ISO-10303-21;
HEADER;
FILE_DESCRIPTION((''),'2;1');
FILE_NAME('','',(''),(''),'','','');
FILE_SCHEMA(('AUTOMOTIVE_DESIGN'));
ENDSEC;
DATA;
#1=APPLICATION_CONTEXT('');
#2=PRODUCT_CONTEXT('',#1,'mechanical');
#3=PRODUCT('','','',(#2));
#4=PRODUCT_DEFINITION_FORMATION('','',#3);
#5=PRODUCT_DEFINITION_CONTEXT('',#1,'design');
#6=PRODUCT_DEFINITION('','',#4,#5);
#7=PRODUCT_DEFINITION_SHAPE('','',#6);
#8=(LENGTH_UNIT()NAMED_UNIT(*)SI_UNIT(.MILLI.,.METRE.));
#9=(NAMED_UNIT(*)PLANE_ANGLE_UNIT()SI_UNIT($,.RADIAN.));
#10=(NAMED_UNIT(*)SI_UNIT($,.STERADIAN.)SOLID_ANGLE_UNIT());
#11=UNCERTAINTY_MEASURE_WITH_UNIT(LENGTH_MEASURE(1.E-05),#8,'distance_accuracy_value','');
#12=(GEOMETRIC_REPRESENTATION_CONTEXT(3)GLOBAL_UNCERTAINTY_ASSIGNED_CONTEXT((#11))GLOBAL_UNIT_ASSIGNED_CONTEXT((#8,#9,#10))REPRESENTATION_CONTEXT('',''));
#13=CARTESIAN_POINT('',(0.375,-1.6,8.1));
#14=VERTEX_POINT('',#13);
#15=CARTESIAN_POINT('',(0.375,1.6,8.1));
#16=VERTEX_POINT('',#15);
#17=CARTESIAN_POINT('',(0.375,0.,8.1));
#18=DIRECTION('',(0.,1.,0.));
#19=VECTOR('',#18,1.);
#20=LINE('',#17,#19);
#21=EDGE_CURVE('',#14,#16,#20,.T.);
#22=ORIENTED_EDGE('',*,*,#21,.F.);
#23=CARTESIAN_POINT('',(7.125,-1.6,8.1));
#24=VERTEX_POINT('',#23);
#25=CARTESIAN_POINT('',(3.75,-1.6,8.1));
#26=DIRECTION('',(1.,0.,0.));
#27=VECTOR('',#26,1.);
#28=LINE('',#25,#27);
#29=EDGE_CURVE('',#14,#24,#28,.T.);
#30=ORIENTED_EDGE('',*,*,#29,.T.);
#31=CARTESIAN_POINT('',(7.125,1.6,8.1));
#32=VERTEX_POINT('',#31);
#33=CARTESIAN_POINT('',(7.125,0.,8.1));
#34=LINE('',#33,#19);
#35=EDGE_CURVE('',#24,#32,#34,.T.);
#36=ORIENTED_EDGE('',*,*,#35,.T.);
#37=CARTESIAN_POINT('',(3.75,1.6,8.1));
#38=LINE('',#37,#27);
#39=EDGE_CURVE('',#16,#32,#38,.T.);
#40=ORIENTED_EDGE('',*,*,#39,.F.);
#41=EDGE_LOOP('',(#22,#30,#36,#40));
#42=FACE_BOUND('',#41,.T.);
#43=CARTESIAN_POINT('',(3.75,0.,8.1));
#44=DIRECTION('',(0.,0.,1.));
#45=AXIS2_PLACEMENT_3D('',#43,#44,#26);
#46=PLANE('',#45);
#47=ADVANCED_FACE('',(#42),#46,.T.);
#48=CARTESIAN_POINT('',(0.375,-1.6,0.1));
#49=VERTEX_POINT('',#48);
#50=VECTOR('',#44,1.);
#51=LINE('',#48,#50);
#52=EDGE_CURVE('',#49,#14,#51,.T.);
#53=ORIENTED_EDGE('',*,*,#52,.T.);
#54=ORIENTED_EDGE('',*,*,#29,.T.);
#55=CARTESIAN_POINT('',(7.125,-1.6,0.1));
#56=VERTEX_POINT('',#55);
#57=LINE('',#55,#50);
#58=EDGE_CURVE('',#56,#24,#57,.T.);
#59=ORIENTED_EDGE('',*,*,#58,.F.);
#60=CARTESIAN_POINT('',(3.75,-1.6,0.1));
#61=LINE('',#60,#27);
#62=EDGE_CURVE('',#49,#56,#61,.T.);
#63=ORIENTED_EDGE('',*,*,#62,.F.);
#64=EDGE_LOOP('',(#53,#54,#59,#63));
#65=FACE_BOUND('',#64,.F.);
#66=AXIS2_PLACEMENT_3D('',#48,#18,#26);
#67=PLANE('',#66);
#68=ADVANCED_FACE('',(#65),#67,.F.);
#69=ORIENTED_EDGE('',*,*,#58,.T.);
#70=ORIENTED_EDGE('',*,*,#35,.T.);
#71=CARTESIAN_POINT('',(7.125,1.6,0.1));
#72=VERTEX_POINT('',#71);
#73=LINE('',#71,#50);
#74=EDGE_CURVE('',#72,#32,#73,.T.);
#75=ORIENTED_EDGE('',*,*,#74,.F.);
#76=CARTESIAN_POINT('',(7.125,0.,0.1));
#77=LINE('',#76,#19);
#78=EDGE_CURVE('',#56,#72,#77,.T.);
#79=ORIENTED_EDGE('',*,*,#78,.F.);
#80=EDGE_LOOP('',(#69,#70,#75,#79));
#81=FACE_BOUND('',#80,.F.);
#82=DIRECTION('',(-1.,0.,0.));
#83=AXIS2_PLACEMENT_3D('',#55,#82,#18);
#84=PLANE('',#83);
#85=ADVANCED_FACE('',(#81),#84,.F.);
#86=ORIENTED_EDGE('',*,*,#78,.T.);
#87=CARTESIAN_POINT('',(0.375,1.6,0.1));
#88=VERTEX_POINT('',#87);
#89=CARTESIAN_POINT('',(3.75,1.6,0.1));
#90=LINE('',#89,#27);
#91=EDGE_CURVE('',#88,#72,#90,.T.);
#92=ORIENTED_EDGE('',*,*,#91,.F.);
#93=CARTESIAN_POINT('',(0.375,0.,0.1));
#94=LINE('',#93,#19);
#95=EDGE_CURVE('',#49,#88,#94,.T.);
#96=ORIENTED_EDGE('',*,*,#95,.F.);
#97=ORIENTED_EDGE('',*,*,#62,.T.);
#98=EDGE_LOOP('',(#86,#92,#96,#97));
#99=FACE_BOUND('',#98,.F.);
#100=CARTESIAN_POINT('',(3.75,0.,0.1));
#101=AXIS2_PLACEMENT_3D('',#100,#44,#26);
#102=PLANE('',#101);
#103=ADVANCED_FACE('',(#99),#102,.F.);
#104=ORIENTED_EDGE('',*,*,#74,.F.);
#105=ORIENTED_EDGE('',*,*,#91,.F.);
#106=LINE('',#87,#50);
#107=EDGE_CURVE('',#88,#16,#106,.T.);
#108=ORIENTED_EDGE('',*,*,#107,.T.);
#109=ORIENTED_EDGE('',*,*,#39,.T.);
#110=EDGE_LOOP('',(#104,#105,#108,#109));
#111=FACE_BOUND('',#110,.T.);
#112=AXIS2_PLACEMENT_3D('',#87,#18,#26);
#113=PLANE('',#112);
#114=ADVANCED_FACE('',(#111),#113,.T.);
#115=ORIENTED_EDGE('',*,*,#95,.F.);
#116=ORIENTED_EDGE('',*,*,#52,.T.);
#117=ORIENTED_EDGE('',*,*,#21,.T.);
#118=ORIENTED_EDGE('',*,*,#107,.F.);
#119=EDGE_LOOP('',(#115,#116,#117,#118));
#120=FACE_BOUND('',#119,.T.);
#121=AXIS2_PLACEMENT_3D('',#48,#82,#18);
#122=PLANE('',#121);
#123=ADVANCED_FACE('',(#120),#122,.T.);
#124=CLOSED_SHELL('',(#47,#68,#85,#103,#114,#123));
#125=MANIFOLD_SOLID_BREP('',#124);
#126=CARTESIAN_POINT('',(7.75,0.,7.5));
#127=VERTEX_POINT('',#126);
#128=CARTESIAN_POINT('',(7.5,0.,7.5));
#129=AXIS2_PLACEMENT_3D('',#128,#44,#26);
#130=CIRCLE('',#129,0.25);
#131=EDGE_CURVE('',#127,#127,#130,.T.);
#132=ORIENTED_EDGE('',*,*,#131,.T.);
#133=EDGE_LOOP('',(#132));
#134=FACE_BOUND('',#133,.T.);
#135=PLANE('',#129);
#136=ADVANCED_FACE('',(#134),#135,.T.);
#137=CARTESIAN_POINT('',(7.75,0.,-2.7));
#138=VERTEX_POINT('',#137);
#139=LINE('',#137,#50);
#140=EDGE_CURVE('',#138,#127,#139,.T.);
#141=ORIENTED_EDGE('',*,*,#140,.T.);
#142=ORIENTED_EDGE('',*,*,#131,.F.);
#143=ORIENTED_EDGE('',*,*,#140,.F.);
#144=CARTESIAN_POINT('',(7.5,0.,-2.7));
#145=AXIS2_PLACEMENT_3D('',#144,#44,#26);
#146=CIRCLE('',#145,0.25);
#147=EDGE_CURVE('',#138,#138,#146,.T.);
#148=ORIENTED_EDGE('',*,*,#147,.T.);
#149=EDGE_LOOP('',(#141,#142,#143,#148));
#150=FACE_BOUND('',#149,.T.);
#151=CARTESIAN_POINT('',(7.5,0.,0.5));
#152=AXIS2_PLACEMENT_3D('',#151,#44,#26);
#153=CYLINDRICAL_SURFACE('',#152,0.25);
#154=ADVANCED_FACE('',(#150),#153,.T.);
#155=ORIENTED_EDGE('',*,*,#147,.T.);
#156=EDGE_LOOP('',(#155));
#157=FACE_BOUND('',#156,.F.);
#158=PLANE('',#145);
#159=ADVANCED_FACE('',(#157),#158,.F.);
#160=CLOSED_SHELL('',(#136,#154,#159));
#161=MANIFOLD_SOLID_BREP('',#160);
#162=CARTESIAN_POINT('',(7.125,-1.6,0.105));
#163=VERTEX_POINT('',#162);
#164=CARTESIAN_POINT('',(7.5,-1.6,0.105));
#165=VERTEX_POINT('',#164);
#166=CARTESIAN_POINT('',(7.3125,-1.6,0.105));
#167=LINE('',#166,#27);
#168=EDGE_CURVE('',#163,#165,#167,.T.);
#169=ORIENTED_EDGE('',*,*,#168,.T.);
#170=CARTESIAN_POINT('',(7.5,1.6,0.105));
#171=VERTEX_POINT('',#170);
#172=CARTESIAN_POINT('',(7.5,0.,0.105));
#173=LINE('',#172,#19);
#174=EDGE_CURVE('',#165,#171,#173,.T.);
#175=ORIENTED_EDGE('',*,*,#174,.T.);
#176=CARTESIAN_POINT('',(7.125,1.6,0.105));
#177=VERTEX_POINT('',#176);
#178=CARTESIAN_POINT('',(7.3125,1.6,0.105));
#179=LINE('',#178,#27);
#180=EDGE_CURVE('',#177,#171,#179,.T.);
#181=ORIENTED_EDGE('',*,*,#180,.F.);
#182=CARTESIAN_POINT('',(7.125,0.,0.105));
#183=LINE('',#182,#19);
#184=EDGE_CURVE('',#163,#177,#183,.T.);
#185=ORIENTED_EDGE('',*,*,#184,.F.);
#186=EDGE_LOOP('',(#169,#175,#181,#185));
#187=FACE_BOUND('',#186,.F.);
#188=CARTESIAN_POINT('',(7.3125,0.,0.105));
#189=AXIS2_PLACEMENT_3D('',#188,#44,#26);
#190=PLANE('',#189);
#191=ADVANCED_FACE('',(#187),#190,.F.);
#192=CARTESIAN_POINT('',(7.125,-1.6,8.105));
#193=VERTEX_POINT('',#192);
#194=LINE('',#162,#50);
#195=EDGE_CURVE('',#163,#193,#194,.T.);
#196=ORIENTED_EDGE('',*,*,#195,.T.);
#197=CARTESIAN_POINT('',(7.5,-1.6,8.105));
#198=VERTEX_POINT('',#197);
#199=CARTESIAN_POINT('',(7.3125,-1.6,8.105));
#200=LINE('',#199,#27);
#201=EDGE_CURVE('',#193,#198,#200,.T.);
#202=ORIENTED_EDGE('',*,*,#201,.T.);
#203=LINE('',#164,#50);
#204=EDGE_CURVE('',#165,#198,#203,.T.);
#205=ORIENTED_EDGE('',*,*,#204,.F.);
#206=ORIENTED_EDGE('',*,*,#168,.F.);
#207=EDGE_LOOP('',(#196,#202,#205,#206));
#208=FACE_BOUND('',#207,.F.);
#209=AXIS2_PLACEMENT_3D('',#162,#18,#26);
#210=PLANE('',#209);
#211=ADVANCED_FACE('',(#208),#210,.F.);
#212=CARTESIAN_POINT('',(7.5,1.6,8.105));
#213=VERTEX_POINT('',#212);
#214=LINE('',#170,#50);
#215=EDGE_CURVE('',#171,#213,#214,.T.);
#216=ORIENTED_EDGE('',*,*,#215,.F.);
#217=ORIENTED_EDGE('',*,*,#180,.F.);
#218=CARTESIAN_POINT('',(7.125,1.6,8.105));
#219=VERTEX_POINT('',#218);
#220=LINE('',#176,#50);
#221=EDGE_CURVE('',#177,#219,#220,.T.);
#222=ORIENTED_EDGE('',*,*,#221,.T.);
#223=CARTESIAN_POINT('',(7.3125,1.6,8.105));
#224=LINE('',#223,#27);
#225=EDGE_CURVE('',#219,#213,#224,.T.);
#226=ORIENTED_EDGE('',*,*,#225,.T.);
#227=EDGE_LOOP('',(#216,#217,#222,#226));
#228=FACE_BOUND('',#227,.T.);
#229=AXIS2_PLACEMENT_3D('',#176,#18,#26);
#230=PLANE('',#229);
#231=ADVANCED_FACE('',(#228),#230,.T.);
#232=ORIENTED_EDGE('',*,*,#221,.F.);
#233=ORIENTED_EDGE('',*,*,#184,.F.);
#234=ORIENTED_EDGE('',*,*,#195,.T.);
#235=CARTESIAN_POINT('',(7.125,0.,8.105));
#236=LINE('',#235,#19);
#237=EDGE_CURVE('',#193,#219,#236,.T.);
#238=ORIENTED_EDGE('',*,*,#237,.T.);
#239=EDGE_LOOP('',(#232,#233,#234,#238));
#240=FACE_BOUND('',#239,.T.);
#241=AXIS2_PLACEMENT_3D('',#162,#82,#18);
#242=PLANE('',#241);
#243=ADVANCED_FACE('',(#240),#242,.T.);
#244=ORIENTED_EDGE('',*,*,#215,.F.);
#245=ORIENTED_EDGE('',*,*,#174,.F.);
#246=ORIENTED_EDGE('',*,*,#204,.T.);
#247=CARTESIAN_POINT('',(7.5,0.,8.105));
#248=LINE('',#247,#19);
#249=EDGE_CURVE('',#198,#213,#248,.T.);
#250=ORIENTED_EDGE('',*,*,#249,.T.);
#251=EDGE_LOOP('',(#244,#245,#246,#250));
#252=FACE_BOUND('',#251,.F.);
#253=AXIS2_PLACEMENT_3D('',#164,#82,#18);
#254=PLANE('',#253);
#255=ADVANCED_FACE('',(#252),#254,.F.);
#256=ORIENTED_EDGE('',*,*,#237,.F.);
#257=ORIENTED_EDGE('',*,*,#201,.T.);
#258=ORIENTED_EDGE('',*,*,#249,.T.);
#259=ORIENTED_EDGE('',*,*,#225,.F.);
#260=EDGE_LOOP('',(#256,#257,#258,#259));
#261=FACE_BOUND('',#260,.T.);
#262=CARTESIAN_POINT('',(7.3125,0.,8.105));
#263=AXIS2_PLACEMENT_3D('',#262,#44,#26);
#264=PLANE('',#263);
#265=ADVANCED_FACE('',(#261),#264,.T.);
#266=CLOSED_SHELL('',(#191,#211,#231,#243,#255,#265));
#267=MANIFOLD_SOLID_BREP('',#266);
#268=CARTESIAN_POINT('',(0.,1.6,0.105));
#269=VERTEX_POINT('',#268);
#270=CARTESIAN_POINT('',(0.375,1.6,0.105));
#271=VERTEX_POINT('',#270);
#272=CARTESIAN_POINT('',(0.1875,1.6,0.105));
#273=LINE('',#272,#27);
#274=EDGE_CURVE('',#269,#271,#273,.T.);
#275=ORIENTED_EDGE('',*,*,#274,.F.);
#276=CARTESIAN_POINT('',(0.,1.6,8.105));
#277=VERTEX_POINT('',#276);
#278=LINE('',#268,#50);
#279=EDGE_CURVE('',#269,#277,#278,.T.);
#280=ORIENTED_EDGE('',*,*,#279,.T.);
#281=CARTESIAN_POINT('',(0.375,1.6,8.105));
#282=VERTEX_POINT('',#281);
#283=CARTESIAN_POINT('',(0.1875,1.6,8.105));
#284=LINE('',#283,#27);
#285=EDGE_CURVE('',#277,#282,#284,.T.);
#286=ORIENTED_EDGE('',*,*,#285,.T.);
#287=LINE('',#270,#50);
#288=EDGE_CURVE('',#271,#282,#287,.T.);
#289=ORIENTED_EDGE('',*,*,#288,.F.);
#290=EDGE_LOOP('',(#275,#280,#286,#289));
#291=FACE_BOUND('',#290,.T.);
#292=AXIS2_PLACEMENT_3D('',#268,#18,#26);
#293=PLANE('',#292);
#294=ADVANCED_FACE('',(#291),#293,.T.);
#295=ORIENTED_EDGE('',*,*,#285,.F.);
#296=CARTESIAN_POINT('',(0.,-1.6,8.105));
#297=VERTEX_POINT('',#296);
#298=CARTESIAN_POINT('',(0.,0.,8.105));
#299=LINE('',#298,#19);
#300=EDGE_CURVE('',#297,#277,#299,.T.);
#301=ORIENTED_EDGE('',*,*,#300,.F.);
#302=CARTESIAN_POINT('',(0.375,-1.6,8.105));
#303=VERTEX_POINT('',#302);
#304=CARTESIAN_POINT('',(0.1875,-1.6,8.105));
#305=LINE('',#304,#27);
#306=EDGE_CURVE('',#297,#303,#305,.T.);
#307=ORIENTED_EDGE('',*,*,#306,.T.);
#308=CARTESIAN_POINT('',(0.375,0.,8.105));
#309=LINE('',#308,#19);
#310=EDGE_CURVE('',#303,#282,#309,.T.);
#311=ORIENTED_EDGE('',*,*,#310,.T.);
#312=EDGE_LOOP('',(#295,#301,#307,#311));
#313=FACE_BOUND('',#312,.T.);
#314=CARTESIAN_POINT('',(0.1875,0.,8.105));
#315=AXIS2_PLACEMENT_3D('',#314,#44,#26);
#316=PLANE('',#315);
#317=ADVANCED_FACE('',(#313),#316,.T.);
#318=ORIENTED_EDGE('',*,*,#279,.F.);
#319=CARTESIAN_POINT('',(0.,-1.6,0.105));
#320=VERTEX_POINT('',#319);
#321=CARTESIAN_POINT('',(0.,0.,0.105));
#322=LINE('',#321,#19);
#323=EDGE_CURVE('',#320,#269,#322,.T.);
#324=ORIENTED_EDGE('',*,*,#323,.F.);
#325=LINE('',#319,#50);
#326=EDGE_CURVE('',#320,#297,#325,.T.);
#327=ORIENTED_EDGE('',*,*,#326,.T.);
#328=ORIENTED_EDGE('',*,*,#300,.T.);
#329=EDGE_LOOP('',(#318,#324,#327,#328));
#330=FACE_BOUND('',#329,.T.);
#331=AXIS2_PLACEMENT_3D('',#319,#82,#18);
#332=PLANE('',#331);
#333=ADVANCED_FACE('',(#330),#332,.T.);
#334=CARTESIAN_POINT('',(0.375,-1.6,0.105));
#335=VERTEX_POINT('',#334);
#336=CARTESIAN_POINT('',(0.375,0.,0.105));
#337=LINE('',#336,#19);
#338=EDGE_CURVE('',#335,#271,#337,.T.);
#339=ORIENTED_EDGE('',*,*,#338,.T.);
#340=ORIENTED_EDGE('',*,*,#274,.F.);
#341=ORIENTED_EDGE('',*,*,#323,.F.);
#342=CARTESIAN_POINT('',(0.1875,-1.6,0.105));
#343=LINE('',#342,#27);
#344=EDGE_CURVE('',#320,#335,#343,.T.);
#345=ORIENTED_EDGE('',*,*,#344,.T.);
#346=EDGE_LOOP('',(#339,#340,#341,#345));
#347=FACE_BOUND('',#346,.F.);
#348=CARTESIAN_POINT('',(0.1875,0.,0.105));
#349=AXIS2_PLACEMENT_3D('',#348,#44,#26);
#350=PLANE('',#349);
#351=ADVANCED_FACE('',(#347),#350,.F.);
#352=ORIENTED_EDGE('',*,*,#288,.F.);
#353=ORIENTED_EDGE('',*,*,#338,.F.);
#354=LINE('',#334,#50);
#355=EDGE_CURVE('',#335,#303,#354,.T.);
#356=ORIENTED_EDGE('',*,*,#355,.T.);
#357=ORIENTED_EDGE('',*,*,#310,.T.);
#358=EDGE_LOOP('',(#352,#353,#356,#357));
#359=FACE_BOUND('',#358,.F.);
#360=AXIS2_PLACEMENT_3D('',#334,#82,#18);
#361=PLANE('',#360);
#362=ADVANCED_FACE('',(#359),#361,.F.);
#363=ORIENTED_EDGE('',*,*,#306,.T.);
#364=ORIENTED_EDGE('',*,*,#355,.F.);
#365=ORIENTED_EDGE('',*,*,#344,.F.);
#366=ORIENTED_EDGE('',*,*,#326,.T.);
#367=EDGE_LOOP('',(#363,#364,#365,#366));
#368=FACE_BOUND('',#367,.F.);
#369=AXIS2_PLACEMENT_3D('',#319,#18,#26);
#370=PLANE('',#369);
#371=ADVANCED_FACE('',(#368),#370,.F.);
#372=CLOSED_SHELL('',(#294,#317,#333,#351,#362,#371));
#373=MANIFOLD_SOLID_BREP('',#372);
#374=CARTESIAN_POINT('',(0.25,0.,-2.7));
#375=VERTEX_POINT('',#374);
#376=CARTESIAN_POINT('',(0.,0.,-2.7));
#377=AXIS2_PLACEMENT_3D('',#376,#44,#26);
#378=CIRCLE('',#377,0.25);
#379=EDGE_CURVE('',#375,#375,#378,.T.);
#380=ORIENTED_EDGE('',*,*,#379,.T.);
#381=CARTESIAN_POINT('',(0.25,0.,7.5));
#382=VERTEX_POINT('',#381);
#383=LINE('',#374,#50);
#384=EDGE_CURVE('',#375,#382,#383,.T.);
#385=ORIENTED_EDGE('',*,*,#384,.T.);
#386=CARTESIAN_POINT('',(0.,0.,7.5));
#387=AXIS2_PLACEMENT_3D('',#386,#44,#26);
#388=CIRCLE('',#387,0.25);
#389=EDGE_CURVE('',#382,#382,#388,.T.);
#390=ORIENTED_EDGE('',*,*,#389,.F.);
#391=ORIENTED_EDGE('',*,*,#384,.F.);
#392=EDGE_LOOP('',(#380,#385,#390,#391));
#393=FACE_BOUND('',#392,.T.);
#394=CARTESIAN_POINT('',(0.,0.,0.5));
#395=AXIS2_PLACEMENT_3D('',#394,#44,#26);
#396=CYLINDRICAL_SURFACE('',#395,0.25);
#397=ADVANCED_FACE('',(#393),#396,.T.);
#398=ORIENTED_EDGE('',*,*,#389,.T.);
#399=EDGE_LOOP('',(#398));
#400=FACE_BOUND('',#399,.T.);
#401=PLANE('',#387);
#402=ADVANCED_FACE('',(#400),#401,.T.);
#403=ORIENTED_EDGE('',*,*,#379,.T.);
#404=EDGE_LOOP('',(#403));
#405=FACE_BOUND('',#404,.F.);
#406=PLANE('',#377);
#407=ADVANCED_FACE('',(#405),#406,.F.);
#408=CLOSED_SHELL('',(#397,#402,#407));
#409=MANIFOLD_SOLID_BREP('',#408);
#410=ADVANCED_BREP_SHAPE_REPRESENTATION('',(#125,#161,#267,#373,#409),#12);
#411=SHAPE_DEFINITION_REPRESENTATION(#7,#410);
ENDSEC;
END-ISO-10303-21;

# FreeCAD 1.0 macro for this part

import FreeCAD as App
import Part
import Sketcher

V = App.Vector

doc = App.newDocument("Part")
body = doc.addObject("PartDesign::Body", "Body")

# Sketch on XY plane
sketch1 = body.newObject("Sketcher::SketchObject", "Sketch")
sketch1.AttachmentSupport = (doc.getObject("XY_Plane"), [""])
sketch1.MapMode = "FlatFace"
sketch1.AttachmentOffset = App.Placement(V(0, 0, 0.1), App.Rotation())
sketch1.addGeometry([
    Part.LineSegment(V(0.4, 1.6, 0), V(0.4, -1.6, 0)),
    Part.LineSegment(V(0.4, -1.6, 0), V(7.1, -1.6, 0)),
    Part.LineSegment(V(7.1, -1.6, 0), V(7.1, 1.6, 0)),
    Part.LineSegment(V(7.1, 1.6, 0), V(0.4, 1.6, 0)),
], False)
sketch1.addConstraint([
    Sketcher.Constraint("Coincident", 0, 2, 1, 1),
    Sketcher.Constraint("Coincident", 1, 2, 2, 1),
    Sketcher.Constraint("Coincident", 2, 2, 3, 1),
    Sketcher.Constraint("Coincident", 3, 2, 0, 1),
    Sketcher.Constraint("Vertical", 0),
    Sketcher.Constraint("Horizontal", 1),
    Sketcher.Constraint("Vertical", 2),
    Sketcher.Constraint("Horizontal", 3),
    Sketcher.Constraint("DistanceY", 0, 2, 0, 1, 3.2),
    Sketcher.Constraint("DistanceX", 1, 1, 1, 2, 6.75),
    Sketcher.Constraint("DistanceY", 0, 2, -1, 1, 1.6),
    Sketcher.Constraint("DistanceX", -1, 1, 0, 2, 0.375),
])
pad1 = body.newObject("PartDesign::Pad", "Pad")
pad1.Profile = sketch1
pad1.Length = 8
body2 = doc.addObject("PartDesign::Body", "Body001")
body2.AllowCompound = True

# Sketch on XY plane
sketch2 = body2.newObject("Sketcher::SketchObject", "Sketch001")
sketch2.AttachmentSupport = (doc.getObject("XY_Plane001"), [""])
sketch2.MapMode = "FlatFace"
sketch2.AttachmentOffset = App.Placement(V(0, 0, 0.5), App.Rotation())
sketch2.addGeometry([
    Part.Circle(V(0, 0, 0), V(0, 0, 1), 0.25),
    Part.Circle(V(7.5, 0, 0), V(0, 0, 1), 0.25),
], False)
sketch2.addConstraint([
    Sketcher.Constraint("Coincident", 0, 3, -1, 1),
    Sketcher.Constraint("Equal", 0, 1),
    Sketcher.Constraint("PointOnObject", 1, 3, -1),
    Sketcher.Constraint("Diameter", 0, 0.5),
    Sketcher.Constraint("DistanceX", -1, 1, 1, 3, 7.5),
])
pad2 = body2.newObject("PartDesign::Pad", "Pad001")
pad2.Profile = sketch2
pad2.Type = "TwoLengths"
pad2.Length = 7
pad2.Length2 = 3.2
body3 = doc.addObject("PartDesign::Body", "Body002")
body3.AllowCompound = True

# Sketch on XY plane
sketch3 = body3.newObject("Sketcher::SketchObject", "Sketch002")
sketch3.AttachmentSupport = (doc.getObject("XY_Plane002"), [""])
sketch3.MapMode = "FlatFace"
sketch3.AttachmentOffset = App.Placement(V(0, 0, 0.105), App.Rotation())
sketch3.addGeometry([
    Part.LineSegment(V(0, 1.6, 0), V(0, -1.6, 0)),  # 0
    Part.LineSegment(V(0, -1.6, 0), V(0.38, -1.6, 0)),  # 1
    Part.LineSegment(V(0.38, -1.6, 0), V(0.38, 1.6, 0)),  # 2
    Part.LineSegment(V(0.38, 1.6, 0), V(0, 1.6, 0)),  # 3
    Part.LineSegment(V(7.12, 1.6, 0), V(7.12, -1.6, 0)),  # 4
    Part.LineSegment(V(7.12, -1.6, 0), V(7.5, -1.6, 0)),  # 5
    Part.LineSegment(V(7.5, -1.6, 0), V(7.5, 1.6, 0)),  # 6
    Part.LineSegment(V(7.5, 1.6, 0), V(7.12, 1.6, 0)),  # 7
], False)
sketch3.addConstraint([
    Sketcher.Constraint("Coincident", 0, 2, 1, 1),
    Sketcher.Constraint("Coincident", 1, 2, 2, 1),
    Sketcher.Constraint("Coincident", 2, 2, 3, 1),
    Sketcher.Constraint("Coincident", 3, 2, 0, 1),
    Sketcher.Constraint("Coincident", 4, 2, 5, 1),
    Sketcher.Constraint("Coincident", 5, 2, 6, 1),
    Sketcher.Constraint("Coincident", 6, 2, 7, 1),
    Sketcher.Constraint("Coincident", 7, 2, 4, 1),
    Sketcher.Constraint("Vertical", 0),
    Sketcher.Constraint("Horizontal", 1),
    Sketcher.Constraint("Vertical", 2),
    Sketcher.Constraint("Horizontal", 3),
    Sketcher.Constraint("Vertical", 4),
    Sketcher.Constraint("Horizontal", 5),
    Sketcher.Constraint("Vertical", 6),
    Sketcher.Constraint("Horizontal", 7),
    Sketcher.Constraint("Symmetric", 0, 2, 3, 2, -1, 1),
    Sketcher.Constraint("Horizontal", 1, 2, 4, 2),
    Sketcher.Constraint("Horizontal", 3, 2, 6, 2),
    Sketcher.Constraint("Equal", 3, 5),
    Sketcher.Constraint("DistanceY", 0, 2, 0, 1, 3.2),
    Sketcher.Constraint("DistanceX", -1, 1, 5, 2, 7.5),
    Sketcher.Constraint("DistanceX", 1, 1, 1, 2, 0.375),
])
pad3 = body3.newObject("PartDesign::Pad", "Pad002")
pad3.Profile = sketch3
pad3.Length = 8

doc.recompute()
